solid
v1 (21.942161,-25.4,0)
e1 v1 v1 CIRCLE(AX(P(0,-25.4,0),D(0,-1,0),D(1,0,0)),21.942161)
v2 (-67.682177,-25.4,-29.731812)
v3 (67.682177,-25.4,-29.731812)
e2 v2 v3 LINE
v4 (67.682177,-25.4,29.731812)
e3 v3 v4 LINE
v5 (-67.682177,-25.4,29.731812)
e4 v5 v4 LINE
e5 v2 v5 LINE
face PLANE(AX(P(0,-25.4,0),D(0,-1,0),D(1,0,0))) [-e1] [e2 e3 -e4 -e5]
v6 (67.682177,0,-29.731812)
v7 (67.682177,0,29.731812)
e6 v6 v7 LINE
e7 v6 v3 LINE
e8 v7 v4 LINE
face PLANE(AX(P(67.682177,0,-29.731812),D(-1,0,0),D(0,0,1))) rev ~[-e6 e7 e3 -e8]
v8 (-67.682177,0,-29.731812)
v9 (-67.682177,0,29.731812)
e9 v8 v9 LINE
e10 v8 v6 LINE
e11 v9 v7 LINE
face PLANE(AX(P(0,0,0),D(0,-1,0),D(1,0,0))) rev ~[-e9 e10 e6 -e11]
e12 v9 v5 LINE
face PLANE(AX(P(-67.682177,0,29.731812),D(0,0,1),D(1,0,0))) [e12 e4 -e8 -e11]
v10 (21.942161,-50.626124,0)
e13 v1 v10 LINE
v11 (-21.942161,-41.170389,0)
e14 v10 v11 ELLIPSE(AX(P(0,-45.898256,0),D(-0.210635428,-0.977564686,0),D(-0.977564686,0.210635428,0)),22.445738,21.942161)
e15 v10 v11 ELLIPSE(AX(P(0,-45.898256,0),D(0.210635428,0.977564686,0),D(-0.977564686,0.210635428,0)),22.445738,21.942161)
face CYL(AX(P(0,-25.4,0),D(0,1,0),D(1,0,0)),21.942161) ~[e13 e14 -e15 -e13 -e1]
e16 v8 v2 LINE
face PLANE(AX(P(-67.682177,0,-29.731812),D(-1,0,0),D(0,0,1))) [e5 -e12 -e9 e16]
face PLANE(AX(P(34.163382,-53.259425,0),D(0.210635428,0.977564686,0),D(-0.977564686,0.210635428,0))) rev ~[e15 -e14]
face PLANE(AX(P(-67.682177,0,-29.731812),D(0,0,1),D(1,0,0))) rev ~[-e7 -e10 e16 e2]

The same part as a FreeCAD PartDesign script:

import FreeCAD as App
import Part
import Sketcher
from FreeCAD import Vector
Q = App.Units.Quantity


def add_polygon(sketch, points):
    """Adds a closed chain of lines whose ends are joined by coincident constraints."""
    first, n = sketch.GeometryCount, len(points)
    for a, b in zip(points, points[1:] + points[:1]):
        sketch.addGeometry(Part.LineSegment(App.Vector(*a, 0), App.Vector(*b, 0)), False)
    for i in range(n):
        sketch.addConstraint(Sketcher.Constraint("Coincident", first + i, 2, first + (i + 1) % n, 1))

doc = App.newDocument("Part")
body = doc.addObject("PartDesign::Body", "Body")

sketch1 = body.newObject("Sketcher::SketchObject", "Sketch")
sketch1.AttachmentSupport = (doc.getObject("XZ_Plane"), [""])
sketch1.MapMode = "FlatFace"
add_polygon(sketch1, [(-67.682177, 29.731812), (-67.682177, -29.731812), (67.682177, -29.731812), (67.682177, 29.731812)])
sketch1.addConstraint(Sketcher.Constraint("Vertical", 0))
sketch1.addConstraint(Sketcher.Constraint("Horizontal", 1))
sketch1.addConstraint(Sketcher.Constraint("Vertical", 2))
sketch1.addConstraint(Sketcher.Constraint("Horizontal", 3))
sketch1.addConstraint(Sketcher.Constraint("Symmetric", 0, 2, 2, 2, -1, 1))
sketch1.addConstraint(Sketcher.Constraint("DistanceX", 1, 1, 1, 2, Q("135.364354 mm")))
sketch1.addConstraint(Sketcher.Constraint("DistanceY", 0, 2, 0, 1, Q("59.463624 mm")))
pad1 = body.newObject("PartDesign::Pad", "Pad")
pad1.Profile = sketch1
pad1.Length = Q("1 in")

sketch2 = body.newObject("Sketcher::SketchObject", "Sketch001")
sketch2.AttachmentSupport = (doc.getObject("XZ_Plane"), [""])
sketch2.MapMode = "FlatFace"
sketch2.AttachmentOffset = App.Placement(Vector(0, 0, 1 * 25.4), App.Rotation())
sketch2.addGeometry(Part.Circle(Vector(0, 0, 0), Vector(0, 0, 1), 21.942161), False)
sketch2.addConstraint(Sketcher.Constraint("Coincident", 0, 3, -1, 1))
sketch2.addConstraint(Sketcher.Constraint("Diameter", 0, Q("43.884322 mm")))
pad2 = body.newObject("PartDesign::Pad", "Pad001")
pad2.Profile = sketch2
pad2.Length = Q("1 in")

sketch3 = body.newObject("Sketcher::SketchObject", "Sketch002")
sketch3.AttachmentSupport = (doc.getObject("XY_Plane"), [""])
sketch3.MapMode = "FlatFace"
add_polygon(sketch3, [(34.163382, -53.259425), (-24.172205, -40.689882), (-24.172205, -53.259425)])
sketch3.addConstraint(Sketcher.Constraint("Vertical", 1))
sketch3.addConstraint(Sketcher.Constraint("Horizontal", 2))
sketch3.addConstraint(Sketcher.Constraint("Distance", 0, Q("59.674401 mm")))
sketch3.addConstraint(Sketcher.Constraint("DistanceX", 2, 1, 2, 2, Q("58.335587 mm")))
sketch3.addConstraint(Sketcher.Constraint("DistanceY", 0, 2, -1, 1, Q("40.689882 mm")))
sketch3.addConstraint(Sketcher.Constraint("DistanceX", 0, 2, -1, 1, Q("24.172205 mm")))
pocket1 = body.newObject("PartDesign::Pocket", "Pocket")
pocket1.Profile = sketch3
pocket1.Type = "ThroughAll"
pocket1.Midplane = True

doc.recompute()
